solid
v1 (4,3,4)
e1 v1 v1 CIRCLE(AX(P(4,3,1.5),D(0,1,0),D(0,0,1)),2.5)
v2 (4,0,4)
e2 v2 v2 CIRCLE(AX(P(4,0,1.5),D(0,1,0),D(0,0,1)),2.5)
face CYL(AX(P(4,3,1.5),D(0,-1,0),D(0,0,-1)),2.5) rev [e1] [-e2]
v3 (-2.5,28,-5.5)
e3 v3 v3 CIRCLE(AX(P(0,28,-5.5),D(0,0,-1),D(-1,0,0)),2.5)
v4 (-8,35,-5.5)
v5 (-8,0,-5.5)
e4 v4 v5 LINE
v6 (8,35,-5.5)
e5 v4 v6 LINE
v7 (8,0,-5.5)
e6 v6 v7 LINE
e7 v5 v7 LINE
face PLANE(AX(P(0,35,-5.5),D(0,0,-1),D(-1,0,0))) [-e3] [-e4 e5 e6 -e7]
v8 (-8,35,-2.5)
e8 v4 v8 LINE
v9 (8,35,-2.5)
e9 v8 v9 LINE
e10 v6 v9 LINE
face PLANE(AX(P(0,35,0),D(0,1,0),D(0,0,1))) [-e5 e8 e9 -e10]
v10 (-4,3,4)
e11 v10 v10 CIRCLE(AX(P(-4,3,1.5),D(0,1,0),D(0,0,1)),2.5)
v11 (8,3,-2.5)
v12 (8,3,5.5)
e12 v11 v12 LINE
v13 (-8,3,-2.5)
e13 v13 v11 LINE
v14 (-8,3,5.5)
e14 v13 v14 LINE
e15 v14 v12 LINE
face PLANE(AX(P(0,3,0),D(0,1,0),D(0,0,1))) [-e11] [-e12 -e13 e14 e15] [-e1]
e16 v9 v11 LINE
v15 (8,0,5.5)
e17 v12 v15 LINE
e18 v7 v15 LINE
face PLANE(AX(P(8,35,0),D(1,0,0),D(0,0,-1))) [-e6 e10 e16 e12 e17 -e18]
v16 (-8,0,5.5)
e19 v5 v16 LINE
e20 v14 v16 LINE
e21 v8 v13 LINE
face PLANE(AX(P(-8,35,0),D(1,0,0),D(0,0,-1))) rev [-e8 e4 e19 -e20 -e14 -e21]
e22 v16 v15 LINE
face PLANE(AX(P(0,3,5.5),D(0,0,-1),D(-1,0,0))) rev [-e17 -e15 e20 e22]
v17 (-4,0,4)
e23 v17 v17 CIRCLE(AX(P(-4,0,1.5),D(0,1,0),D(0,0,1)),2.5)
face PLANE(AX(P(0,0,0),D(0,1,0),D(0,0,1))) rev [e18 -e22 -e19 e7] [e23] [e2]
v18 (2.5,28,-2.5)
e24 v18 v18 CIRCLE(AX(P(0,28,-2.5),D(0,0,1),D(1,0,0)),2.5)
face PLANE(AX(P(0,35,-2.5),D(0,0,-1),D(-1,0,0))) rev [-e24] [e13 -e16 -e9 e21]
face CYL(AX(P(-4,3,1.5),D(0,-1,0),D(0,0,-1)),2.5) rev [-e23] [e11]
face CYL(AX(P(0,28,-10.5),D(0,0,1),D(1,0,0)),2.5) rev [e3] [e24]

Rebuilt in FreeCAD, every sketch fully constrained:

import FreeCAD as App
import Part
import Sketcher


def add_polygon(sketch, points):
    """Adds a closed chain of lines whose ends are joined by coincident constraints."""
    first, n = sketch.GeometryCount, len(points)
    for a, b in zip(points, points[1:] + points[:1]):
        sketch.addGeometry(Part.LineSegment(App.Vector(*a, 0), App.Vector(*b, 0)), False)
    for i in range(n):
        sketch.addConstraint(Sketcher.Constraint("Coincident", first + i, 2, first + (i + 1) % n, 1))

doc = App.newDocument("Part")
body = doc.addObject("PartDesign::Body", "Body")

sketch1 = doc.addObject("Sketcher::SketchObject", "Sketch")
body.addObject(sketch1)
sketch1.AttachmentSupport = (doc.XZ_Plane, [""])
sketch1.MapMode = "FlatFace"
add_polygon(sketch1, [(-8, -5.5), (-8, -2.5), (8, -2.5), (8, -5.5)])
sketch1.addConstraint([
    Sketcher.Constraint("Vertical", 0),
    Sketcher.Constraint("Horizontal", 1),
    Sketcher.Constraint("Vertical", 2),
    Sketcher.Constraint("Horizontal", 3),
    Sketcher.Constraint("DistanceX", 1, 1, 1, 2, 16.0),
    Sketcher.Constraint("DistanceY", 0, 1, 0, 2, 3.0),
    Sketcher.Constraint("DistanceX", 0, 2, -1, 1, 8.0),
    Sketcher.Constraint("DistanceY", 0, 2, -1, 1, 2.5),
])
pad1 = doc.addObject("PartDesign::Pad", "Pad")
body.addObject(pad1)
pad1.Profile = sketch1
pad1.Length = 35
pad1.Reversed = True

sketch2 = doc.addObject("Sketcher::SketchObject", "Sketch001")
body.addObject(sketch2)
sketch2.AttachmentSupport = (doc.XZ_Plane, [""])
sketch2.MapMode = "FlatFace"
add_polygon(sketch2, [(-8, -5.5), (-8, 5.5), (8, 5.5), (8, -5.5)])
sketch2.addGeometry(Part.Circle(App.Vector(-4, 1.5, 0), App.Vector(0, 0, 1), 2.5), False)
sketch2.addGeometry(Part.Circle(App.Vector(4, 1.5, 0), App.Vector(0, 0, 1), 2.5), False)
sketch2.addConstraint([
    Sketcher.Constraint("Vertical", 0),
    Sketcher.Constraint("Horizontal", 1),
    Sketcher.Constraint("Vertical", 2),
    Sketcher.Constraint("Horizontal", 3),
    Sketcher.Constraint("Equal", 4, 5),
    Sketcher.Constraint("Symmetric", 0, 2, 2, 2, -1, 1),
    Sketcher.Constraint("Symmetric", 4, 3, 5, 3, -2),
    Sketcher.Constraint("Diameter", 4, 5.0),
    Sketcher.Constraint("DistanceX", 1, 1, 1, 2, 16.0),
    Sketcher.Constraint("DistanceY", 0, 1, 0, 2, 11.0),
    Sketcher.Constraint("DistanceX", 4, 3, -1, 1, 4.0),
    Sketcher.Constraint("DistanceY", 4, 3, 0, 2, 4.0),
])
pad2 = doc.addObject("PartDesign::Pad", "Pad001")
body.addObject(pad2)
pad2.Profile = sketch2
pad2.Length = 3
pad2.Reversed = True

sketch3 = doc.addObject("Sketcher::SketchObject", "Sketch002")
body.addObject(sketch3)
sketch3.AttachmentSupport = (doc.XY_Plane, [""])
sketch3.MapMode = "FlatFace"
sketch3.AttachmentOffset = App.Placement(App.Vector(0, 0, -2.5), App.Rotation())
sketch3.addGeometry(Part.Circle(App.Vector(0, 28, 0), App.Vector(0, 0, 1), 2.5), False)
sketch3.addConstraint([
    Sketcher.Constraint("PointOnObject", 0, 3, -2),
    Sketcher.Constraint("Diameter", 0, 5.0),
    Sketcher.Constraint("DistanceY", -1, 1, 0, 3, 28.0),
])
pocket1 = doc.addObject("PartDesign::Pocket", "Pocket")
body.addObject(pocket1)
pocket1.Profile = sketch3
pocket1.Length = 8

doc.recompute()
